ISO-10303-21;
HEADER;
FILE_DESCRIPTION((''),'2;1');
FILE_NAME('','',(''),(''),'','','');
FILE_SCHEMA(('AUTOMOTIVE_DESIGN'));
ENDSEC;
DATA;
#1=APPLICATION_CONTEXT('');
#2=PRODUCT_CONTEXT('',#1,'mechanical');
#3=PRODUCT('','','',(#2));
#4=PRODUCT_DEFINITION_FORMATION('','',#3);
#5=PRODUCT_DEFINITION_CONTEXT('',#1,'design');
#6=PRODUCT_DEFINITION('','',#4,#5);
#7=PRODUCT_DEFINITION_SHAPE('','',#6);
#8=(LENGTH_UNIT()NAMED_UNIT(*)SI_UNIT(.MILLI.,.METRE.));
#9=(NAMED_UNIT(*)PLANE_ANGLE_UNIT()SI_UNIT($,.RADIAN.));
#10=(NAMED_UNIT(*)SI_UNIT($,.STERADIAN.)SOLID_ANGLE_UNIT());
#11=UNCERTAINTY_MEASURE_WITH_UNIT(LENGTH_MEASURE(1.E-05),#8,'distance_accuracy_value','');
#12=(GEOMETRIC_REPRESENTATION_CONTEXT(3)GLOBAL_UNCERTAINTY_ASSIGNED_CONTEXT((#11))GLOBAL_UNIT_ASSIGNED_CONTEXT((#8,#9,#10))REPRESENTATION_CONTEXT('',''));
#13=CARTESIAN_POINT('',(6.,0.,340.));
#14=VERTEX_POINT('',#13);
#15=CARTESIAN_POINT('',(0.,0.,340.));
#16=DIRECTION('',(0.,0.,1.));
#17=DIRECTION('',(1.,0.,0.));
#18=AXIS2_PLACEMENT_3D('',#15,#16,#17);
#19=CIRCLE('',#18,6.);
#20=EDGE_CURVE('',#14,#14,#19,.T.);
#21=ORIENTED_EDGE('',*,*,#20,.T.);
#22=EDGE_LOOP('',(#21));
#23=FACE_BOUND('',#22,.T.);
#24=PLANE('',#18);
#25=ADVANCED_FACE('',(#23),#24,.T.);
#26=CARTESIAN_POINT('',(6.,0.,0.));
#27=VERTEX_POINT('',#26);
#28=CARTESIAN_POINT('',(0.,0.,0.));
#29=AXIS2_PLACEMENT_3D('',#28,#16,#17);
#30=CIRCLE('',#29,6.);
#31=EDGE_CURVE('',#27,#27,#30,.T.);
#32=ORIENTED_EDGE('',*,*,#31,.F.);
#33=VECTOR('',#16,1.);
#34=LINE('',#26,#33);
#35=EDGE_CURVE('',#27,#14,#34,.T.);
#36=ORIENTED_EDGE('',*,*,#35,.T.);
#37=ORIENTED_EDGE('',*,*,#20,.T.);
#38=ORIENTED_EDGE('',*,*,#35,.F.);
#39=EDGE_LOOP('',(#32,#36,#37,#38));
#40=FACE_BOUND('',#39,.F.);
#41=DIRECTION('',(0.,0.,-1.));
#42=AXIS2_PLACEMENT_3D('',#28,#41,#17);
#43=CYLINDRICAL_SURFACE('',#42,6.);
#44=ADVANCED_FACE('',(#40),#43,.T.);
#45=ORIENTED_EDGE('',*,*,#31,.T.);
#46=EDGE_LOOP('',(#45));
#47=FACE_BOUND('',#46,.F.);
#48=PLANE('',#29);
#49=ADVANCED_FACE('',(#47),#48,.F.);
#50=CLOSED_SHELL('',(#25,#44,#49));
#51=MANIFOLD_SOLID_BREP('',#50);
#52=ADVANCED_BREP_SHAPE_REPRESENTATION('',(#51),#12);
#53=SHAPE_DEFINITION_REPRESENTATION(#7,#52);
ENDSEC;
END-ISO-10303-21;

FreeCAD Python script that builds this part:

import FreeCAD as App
import Part
import Sketcher

V = App.Vector
Q = App.Units.Quantity

doc = App.newDocument("Part")
body = doc.addObject("PartDesign::Body", "Body")

sketch1 = body.newObject("Sketcher::SketchObject", "Sketch")
sketch1.AttachmentSupport = (doc.getObject("XY_Plane"), [""])
sketch1.MapMode = "FlatFace"
sketch1.addGeometry(Part.Circle(V(0, 0, 0), V(0, 0, 1), 6), False)
sketch1.addConstraint([
    Sketcher.Constraint("Coincident", 0, 3, -1, 1),
    Sketcher.Constraint("Diameter", 0, Q("12 mm")),
])
pad1 = body.newObject("PartDesign::Pad", "Pad")
pad1.Profile = sketch1
pad1.Length = 340

doc.recompute()
